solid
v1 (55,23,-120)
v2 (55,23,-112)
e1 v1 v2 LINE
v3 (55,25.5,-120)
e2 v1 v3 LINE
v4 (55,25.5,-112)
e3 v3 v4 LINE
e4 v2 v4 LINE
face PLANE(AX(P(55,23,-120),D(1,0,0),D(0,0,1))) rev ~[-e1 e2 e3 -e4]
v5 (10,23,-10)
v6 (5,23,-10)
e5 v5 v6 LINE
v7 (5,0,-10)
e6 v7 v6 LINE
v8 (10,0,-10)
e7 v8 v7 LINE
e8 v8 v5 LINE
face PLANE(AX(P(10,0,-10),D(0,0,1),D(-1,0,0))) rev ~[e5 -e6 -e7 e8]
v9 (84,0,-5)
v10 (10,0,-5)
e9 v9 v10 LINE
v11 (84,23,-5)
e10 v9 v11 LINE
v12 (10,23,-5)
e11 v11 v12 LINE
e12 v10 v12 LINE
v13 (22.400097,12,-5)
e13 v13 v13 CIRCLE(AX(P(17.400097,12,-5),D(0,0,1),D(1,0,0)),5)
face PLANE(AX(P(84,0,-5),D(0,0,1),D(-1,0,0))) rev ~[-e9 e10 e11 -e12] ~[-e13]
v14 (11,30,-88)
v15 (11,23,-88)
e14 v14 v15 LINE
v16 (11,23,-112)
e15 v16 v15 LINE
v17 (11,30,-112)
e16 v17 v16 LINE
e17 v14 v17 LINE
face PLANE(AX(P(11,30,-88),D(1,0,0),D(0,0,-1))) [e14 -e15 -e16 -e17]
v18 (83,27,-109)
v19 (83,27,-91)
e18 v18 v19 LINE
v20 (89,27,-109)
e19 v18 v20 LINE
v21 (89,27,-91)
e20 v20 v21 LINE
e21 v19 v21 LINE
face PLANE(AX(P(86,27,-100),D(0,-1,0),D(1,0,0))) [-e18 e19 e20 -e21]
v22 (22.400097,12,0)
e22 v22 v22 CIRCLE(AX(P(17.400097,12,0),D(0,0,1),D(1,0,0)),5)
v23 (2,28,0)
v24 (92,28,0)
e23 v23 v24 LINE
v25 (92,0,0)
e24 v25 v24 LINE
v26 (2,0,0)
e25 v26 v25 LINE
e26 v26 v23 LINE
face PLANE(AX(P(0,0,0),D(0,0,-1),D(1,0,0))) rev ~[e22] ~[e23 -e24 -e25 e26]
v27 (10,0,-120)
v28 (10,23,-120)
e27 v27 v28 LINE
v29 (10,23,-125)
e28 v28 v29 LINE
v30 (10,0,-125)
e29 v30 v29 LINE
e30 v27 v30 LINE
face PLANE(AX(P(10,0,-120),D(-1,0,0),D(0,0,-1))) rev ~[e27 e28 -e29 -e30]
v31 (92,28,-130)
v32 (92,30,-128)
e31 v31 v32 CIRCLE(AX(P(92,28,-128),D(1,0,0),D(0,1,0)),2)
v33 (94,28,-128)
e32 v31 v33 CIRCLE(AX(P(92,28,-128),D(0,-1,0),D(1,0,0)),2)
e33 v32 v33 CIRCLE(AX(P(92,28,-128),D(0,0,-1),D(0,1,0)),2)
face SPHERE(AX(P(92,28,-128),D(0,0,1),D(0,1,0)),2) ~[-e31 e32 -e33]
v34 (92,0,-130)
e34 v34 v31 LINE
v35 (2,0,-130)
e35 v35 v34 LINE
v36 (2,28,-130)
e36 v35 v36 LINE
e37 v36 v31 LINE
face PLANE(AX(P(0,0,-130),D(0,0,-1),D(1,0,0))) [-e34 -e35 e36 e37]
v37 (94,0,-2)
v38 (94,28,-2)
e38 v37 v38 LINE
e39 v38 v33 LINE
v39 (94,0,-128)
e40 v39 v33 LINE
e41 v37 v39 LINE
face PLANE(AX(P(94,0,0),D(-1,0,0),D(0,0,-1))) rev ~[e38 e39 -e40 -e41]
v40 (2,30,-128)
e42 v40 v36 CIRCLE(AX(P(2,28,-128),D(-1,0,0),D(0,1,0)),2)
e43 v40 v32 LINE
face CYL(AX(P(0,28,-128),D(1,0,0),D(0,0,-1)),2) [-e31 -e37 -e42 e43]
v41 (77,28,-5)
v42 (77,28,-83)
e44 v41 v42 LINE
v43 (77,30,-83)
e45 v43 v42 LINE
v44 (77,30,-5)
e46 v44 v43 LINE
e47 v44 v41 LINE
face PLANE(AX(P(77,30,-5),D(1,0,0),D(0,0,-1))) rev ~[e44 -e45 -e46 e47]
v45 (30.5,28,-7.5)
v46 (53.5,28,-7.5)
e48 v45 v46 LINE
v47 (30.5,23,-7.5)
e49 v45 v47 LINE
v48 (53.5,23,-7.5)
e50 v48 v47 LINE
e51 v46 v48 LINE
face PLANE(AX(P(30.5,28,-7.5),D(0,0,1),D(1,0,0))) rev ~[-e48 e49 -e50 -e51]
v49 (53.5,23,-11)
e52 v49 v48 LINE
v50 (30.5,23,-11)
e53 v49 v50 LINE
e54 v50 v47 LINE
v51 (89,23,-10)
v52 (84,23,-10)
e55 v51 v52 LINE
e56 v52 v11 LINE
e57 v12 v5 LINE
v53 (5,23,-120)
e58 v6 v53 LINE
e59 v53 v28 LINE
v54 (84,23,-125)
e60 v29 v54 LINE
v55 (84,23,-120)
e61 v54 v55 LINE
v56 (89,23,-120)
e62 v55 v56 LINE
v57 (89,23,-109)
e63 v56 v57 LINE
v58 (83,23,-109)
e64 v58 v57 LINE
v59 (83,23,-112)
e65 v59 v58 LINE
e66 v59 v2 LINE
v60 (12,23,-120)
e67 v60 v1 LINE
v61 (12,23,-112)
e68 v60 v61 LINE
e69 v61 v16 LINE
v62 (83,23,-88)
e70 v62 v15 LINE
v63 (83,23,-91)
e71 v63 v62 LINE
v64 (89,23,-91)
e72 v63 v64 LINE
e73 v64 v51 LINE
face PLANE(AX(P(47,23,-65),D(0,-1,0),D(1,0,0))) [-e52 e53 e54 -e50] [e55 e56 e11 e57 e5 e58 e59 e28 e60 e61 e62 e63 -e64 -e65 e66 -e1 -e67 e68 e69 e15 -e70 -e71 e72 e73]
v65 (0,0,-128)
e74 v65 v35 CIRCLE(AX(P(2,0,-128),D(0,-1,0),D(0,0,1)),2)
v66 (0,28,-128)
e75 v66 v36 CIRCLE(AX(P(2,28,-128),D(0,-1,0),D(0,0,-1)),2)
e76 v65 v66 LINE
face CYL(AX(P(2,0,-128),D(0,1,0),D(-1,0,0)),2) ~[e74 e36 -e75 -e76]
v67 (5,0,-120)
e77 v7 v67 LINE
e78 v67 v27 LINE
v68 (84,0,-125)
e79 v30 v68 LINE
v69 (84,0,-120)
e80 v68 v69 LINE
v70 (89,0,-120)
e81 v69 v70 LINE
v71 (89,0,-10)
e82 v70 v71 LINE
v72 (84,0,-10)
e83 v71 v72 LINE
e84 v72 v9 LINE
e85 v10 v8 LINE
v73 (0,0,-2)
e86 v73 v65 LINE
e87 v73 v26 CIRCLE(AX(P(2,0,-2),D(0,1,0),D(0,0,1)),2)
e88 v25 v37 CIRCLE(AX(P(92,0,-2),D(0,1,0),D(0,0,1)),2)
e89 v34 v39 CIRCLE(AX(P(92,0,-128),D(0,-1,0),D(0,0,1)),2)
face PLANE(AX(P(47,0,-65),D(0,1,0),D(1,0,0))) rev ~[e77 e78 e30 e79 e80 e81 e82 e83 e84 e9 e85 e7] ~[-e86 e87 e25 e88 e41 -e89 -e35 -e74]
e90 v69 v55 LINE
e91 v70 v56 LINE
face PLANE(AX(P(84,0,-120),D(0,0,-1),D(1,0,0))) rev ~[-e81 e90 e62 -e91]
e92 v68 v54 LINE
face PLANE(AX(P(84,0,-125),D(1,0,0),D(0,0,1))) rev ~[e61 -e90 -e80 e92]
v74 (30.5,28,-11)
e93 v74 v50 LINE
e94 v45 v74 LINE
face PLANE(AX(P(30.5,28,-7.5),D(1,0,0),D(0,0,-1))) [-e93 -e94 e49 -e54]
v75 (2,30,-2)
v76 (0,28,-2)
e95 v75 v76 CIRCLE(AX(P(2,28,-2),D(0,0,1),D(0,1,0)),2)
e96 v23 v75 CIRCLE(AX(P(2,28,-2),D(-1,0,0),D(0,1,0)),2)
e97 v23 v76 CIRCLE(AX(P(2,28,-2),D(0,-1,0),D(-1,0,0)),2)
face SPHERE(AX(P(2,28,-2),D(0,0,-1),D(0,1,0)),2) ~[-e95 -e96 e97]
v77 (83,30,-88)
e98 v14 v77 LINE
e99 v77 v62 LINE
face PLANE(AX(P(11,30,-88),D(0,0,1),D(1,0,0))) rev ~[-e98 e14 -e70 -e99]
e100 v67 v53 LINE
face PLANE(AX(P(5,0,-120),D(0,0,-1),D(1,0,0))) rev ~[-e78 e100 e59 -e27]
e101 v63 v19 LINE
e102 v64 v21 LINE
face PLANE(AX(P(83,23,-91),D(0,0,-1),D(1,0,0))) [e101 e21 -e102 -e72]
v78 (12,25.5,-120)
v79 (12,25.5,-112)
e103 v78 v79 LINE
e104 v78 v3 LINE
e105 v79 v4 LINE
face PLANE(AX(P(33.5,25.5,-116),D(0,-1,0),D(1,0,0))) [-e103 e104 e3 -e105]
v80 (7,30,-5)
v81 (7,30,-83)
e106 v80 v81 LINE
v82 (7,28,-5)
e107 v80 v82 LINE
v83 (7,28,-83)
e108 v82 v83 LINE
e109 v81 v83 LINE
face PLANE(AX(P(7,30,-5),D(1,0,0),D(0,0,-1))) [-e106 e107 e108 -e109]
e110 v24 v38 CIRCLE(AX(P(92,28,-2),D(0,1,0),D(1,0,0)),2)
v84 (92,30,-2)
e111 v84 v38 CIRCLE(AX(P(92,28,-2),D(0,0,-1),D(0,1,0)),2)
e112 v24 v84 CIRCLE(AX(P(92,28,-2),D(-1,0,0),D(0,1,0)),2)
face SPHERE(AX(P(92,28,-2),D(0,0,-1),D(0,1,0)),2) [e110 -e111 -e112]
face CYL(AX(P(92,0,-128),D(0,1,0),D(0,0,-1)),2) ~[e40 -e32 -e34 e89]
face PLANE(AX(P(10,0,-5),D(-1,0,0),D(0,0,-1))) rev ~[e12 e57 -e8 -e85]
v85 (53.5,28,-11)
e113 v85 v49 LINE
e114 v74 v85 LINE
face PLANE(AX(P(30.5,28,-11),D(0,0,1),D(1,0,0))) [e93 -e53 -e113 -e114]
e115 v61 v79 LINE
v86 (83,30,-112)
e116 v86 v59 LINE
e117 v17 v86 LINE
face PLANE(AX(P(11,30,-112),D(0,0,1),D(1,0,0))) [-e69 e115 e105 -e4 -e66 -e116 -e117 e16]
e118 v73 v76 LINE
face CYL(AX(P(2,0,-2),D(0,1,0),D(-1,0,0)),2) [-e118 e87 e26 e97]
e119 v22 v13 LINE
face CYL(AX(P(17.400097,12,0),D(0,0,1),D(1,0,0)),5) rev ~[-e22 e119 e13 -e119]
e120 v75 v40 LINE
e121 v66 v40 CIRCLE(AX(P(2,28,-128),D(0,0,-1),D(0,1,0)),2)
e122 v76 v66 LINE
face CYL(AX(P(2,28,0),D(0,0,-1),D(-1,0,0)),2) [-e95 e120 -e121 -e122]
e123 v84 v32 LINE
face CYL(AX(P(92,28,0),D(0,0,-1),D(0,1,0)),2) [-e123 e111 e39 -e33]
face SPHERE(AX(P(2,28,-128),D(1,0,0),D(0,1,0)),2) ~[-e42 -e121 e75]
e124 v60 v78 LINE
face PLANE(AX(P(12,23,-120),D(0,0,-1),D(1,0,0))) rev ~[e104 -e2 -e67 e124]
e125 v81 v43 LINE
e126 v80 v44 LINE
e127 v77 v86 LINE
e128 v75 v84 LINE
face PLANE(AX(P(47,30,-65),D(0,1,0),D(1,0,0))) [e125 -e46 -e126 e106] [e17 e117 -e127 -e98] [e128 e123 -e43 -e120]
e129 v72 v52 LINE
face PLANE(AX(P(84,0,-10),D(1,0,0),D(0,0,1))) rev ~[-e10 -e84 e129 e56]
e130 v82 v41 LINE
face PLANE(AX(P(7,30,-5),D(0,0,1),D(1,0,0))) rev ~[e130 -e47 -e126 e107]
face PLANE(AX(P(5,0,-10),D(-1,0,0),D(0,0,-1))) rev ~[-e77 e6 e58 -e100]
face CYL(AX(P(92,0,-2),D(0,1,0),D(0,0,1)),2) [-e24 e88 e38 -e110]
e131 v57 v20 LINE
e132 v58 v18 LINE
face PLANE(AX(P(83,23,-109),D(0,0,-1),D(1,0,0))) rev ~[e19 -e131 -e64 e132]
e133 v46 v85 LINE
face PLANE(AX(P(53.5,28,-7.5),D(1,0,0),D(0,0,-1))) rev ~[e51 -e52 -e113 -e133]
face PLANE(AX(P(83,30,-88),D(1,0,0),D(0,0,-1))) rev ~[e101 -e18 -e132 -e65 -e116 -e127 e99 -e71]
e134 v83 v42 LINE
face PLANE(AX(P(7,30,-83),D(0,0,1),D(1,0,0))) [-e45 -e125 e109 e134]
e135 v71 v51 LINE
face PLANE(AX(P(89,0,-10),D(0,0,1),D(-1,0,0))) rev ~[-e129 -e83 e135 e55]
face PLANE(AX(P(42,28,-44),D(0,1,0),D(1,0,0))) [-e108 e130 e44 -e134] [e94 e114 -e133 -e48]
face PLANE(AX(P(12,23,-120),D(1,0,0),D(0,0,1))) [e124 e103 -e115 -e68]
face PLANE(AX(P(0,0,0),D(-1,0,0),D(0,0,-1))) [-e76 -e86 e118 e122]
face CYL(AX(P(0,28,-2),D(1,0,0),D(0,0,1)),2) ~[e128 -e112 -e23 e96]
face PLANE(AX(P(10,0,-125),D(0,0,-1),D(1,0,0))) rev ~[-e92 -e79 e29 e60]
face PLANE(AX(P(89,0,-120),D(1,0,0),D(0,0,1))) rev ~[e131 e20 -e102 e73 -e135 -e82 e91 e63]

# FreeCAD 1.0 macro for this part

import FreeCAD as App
import Part
import Sketcher
from FreeCAD import Vector
Q = App.Units.Quantity


def edges_at(feature, points):
    """Names of the edges that pass closest to the given points."""
    edges = feature.Shape.Edges
    near = lambda p: min(range(len(edges)), key=lambda i: edges[i].distToShape(Part.Vertex(*p))[0])
    return sorted({f"Edge{near(p) + 1}" for p in points})

doc = App.newDocument("Part")
body = doc.addObject("PartDesign::Body", "Body")

# Sketch on XZ plane
sketch1 = body.newObject("Sketcher::SketchObject", "Sketch")
sketch1.AttachmentSupport = (doc.getObject("XZ_Plane"), [""])
sketch1.MapMode = "FlatFace"
sketch1.addGeometry([
    Part.LineSegment(Vector(0, -130, 0), Vector(0, 0, 0)),
    Part.LineSegment(Vector(0, 0, 0), Vector(94, 0, 0)),
    Part.LineSegment(Vector(94, 0, 0), Vector(94, -130, 0)),
    Part.LineSegment(Vector(94, -130, 0), Vector(0, -130, 0)),
], False)
sketch1.addConstraint([
    Sketcher.Constraint("Coincident", 0, 2, 1, 1),
    Sketcher.Constraint("Coincident", 1, 2, 2, 1),
    Sketcher.Constraint("Coincident", 2, 2, 3, 1),
    Sketcher.Constraint("Coincident", 3, 2, 0, 1),
    Sketcher.Constraint("Vertical", 0),
    Sketcher.Constraint("Horizontal", 1),
    Sketcher.Constraint("Vertical", 2),
    Sketcher.Constraint("Horizontal", 3),
    Sketcher.Constraint("Coincident", 0, 2, -1, 1),
    Sketcher.Constraint("DistanceX", 1, 1, 1, 2, Q("94 mm")),
    Sketcher.Constraint("DistanceY", 0, 1, 0, 2, Q("130 mm")),
])
pad1 = body.newObject("PartDesign::Pad", "Pad")
pad1.Profile = sketch1
pad1.Length = 30
pad1.Reversed = True

# Sketch on XZ plane
sketch2 = body.newObject("Sketcher::SketchObject", "Sketch001")
sketch2.AttachmentSupport = (doc.getObject("XZ_Plane"), [""])
sketch2.MapMode = "FlatFace"
sketch2.addGeometry([
    Part.LineSegment(Vector(84, -125, 0), Vector(84, -120, 0)),  # 0
    Part.LineSegment(Vector(84, -120, 0), Vector(89, -120, 0)),  # 1
    Part.LineSegment(Vector(89, -120, 0), Vector(89, -10, 0)),  # 2
    Part.LineSegment(Vector(89, -10, 0), Vector(84, -10, 0)),  # 3
    Part.LineSegment(Vector(84, -10, 0), Vector(84, -5, 0)),  # 4
    Part.LineSegment(Vector(84, -5, 0), Vector(10, -5, 0)),  # 5
    Part.LineSegment(Vector(10, -5, 0), Vector(10, -10, 0)),  # 6
    Part.LineSegment(Vector(10, -10, 0), Vector(5, -10, 0)),  # 7
    Part.LineSegment(Vector(5, -10, 0), Vector(5, -120, 0)),  # 8
    Part.LineSegment(Vector(5, -120, 0), Vector(10, -120, 0)),  # 9
    Part.LineSegment(Vector(10, -120, 0), Vector(10, -125, 0)),  # 10
    Part.LineSegment(Vector(10, -125, 0), Vector(84, -125, 0)),  # 11
], False)
sketch2.addConstraint([
    Sketcher.Constraint("Coincident", 0, 2, 1, 1),
    Sketcher.Constraint("Coincident", 1, 2, 2, 1),
    Sketcher.Constraint("Coincident", 2, 2, 3, 1),
    Sketcher.Constraint("Coincident", 3, 2, 4, 1),
    Sketcher.Constraint("Coincident", 4, 2, 5, 1),
    Sketcher.Constraint("Coincident", 5, 2, 6, 1),
    Sketcher.Constraint("Coincident", 6, 2, 7, 1),
    Sketcher.Constraint("Coincident", 7, 2, 8, 1),
    Sketcher.Constraint("Coincident", 8, 2, 9, 1),
    Sketcher.Constraint("Coincident", 9, 2, 10, 1),
    Sketcher.Constraint("Coincident", 10, 2, 11, 1),
    Sketcher.Constraint("Coincident", 11, 2, 0, 1),
    Sketcher.Constraint("Vertical", 0),
    Sketcher.Constraint("Horizontal", 1),
    Sketcher.Constraint("Vertical", 2),
    Sketcher.Constraint("Horizontal", 3),
    Sketcher.Constraint("Vertical", 4),
    Sketcher.Constraint("Horizontal", 5),
    Sketcher.Constraint("Vertical", 6),
    Sketcher.Constraint("Horizontal", 7),
    Sketcher.Constraint("Vertical", 8),
    Sketcher.Constraint("Horizontal", 9),
    Sketcher.Constraint("Vertical", 10),
    Sketcher.Constraint("Horizontal", 11),
    Sketcher.Constraint("Horizontal", 3, 2, 6, 2),
    Sketcher.Constraint("Horizontal", 1, 2, 8, 2),
    Sketcher.Constraint("Vertical", 0, 2, 3, 2),
    Sketcher.Constraint("Vertical", 6, 2, 9, 2),
    Sketcher.Constraint("Equal", 3, 7),
    Sketcher.Constraint("Equal", 9, 0),
    Sketcher.Constraint("Equal", 0, 4),
    Sketcher.Constraint("DistanceX", 1, 1, 1, 2, Q("5 mm")),
    Sketcher.Constraint("DistanceX", 5, 2, 5, 1, Q("74 mm")),
    Sketcher.Constraint("DistanceY", 2, 1, 2, 2, Q("110 mm")),
    Sketcher.Constraint("DistanceX", -1, 1, 0, 2, Q("84 mm")),
    Sketcher.Constraint("DistanceY", 0, 2, -1, 1, Q("120 mm")),
])
pocket1 = body.newObject("PartDesign::Pocket", "Pocket")
pocket1.Profile = sketch2
pocket1.Length = 23

# Sketch on XZ plane
sketch3 = body.newObject("Sketcher::SketchObject", "Sketch002")
sketch3.AttachmentSupport = (doc.getObject("XZ_Plane"), [""])
sketch3.MapMode = "FlatFace"
sketch3.AttachmentOffset = App.Placement(Vector(0, 0, -30), App.Rotation())
sketch3.addGeometry([
    Part.LineSegment(Vector(11, -112, 0), Vector(11, -88, 0)),
    Part.LineSegment(Vector(11, -88, 0), Vector(83, -88, 0)),
    Part.LineSegment(Vector(83, -88, 0), Vector(83, -112, 0)),
    Part.LineSegment(Vector(83, -112, 0), Vector(11, -112, 0)),
], False)
sketch3.addConstraint([
    Sketcher.Constraint("Coincident", 0, 2, 1, 1),
    Sketcher.Constraint("Coincident", 1, 2, 2, 1),
    Sketcher.Constraint("Coincident", 2, 2, 3, 1),
    Sketcher.Constraint("Coincident", 3, 2, 0, 1),
    Sketcher.Constraint("Vertical", 0),
    Sketcher.Constraint("Horizontal", 1),
    Sketcher.Constraint("Vertical", 2),
    Sketcher.Constraint("Horizontal", 3),
    Sketcher.Constraint("DistanceX", 1, 1, 1, 2, Q("72 mm")),
    Sketcher.Constraint("DistanceY", 0, 1, 0, 2, Q("24 mm")),
    Sketcher.Constraint("DistanceX", -1, 1, 0, 2, Q("11 mm")),
    Sketcher.Constraint("DistanceY", 0, 2, -1, 1, Q("88 mm")),
])
pocket2 = body.newObject("PartDesign::Pocket", "Pocket001")
pocket2.Profile = sketch3
pocket2.Type = "ThroughAll"
pocket2.Reversed = True

# Sketch on XZ plane
sketch4 = body.newObject("Sketcher::SketchObject", "Sketch003")
sketch4.AttachmentSupport = (doc.getObject("XZ_Plane"), [""])
sketch4.MapMode = "FlatFace"
sketch4.AttachmentOffset = App.Placement(Vector(0, 0, -23), App.Rotation())
sketch4.addGeometry([
    Part.LineSegment(Vector(83, -91, 0), Vector(83, -109, 0)),
    Part.LineSegment(Vector(83, -109, 0), Vector(89, -109, 0)),
    Part.LineSegment(Vector(89, -109, 0), Vector(89, -91, 0)),
    Part.LineSegment(Vector(89, -91, 0), Vector(83, -91, 0)),
], False)
sketch4.addConstraint([
    Sketcher.Constraint("Coincident", 0, 2, 1, 1),
    Sketcher.Constraint("Coincident", 1, 2, 2, 1),
    Sketcher.Constraint("Coincident", 2, 2, 3, 1),
    Sketcher.Constraint("Coincident", 3, 2, 0, 1),
    Sketcher.Constraint("Vertical", 0),
    Sketcher.Constraint("Horizontal", 1),
    Sketcher.Constraint("Vertical", 2),
    Sketcher.Constraint("Horizontal", 3),
    Sketcher.Constraint("DistanceX", 1, 1, 1, 2, Q("6 mm")),
    Sketcher.Constraint("DistanceY", 0, 2, 0, 1, Q("18 mm")),
    Sketcher.Constraint("DistanceX", -1, 1, 0, 2, Q("83 mm")),
    Sketcher.Constraint("DistanceY", 0, 2, -1, 1, Q("109 mm")),
])
pocket3 = body.newObject("PartDesign::Pocket", "Pocket002")
pocket3.Profile = sketch4
pocket3.Length = 4

# Sketch on XZ plane
sketch5 = body.newObject("Sketcher::SketchObject", "Sketch004")
sketch5.AttachmentSupport = (doc.getObject("XZ_Plane"), [""])
sketch5.MapMode = "FlatFace"
sketch5.AttachmentOffset = App.Placement(Vector(0, 0, -23), App.Rotation())
sketch5.addGeometry([
    Part.LineSegment(Vector(12, -112, 0), Vector(12, -120, 0)),
    Part.LineSegment(Vector(12, -120, 0), Vector(55, -120, 0)),
    Part.LineSegment(Vector(55, -120, 0), Vector(55, -112, 0)),
    Part.LineSegment(Vector(55, -112, 0), Vector(12, -112, 0)),
], False)
sketch5.addConstraint([
    Sketcher.Constraint("Coincident", 0, 2, 1, 1),
    Sketcher.Constraint("Coincident", 1, 2, 2, 1),
    Sketcher.Constraint("Coincident", 2, 2, 3, 1),
    Sketcher.Constraint("Coincident", 3, 2, 0, 1),
    Sketcher.Constraint("Vertical", 0),
    Sketcher.Constraint("Horizontal", 1),
    Sketcher.Constraint("Vertical", 2),
    Sketcher.Constraint("Horizontal", 3),
    Sketcher.Constraint("DistanceX", 1, 1, 1, 2, Q("43 mm")),
    Sketcher.Constraint("DistanceY", 0, 2, 0, 1, Q("8 mm")),
    Sketcher.Constraint("DistanceX", -1, 1, 0, 2, Q("12 mm")),
    Sketcher.Constraint("DistanceY", 0, 2, -1, 1, Q("120 mm")),
])
pocket4 = body.newObject("PartDesign::Pocket", "Pocket003")
pocket4.Profile = sketch5
pocket4.Length = 2.5

# Sketch on XZ plane
sketch6 = body.newObject("Sketcher::SketchObject", "Sketch005")
sketch6.AttachmentSupport = (doc.getObject("XZ_Plane"), [""])
sketch6.MapMode = "FlatFace"
sketch6.AttachmentOffset = App.Placement(Vector(0, 0, -30), App.Rotation())
sketch6.addGeometry([
    Part.LineSegment(Vector(7, -83, 0), Vector(7, -5, 0)),
    Part.LineSegment(Vector(7, -5, 0), Vector(77, -5, 0)),
    Part.LineSegment(Vector(77, -5, 0), Vector(77, -83, 0)),
    Part.LineSegment(Vector(77, -83, 0), Vector(7, -83, 0)),
], False)
sketch6.addConstraint([
    Sketcher.Constraint("Coincident", 0, 2, 1, 1),
    Sketcher.Constraint("Coincident", 1, 2, 2, 1),
    Sketcher.Constraint("Coincident", 2, 2, 3, 1),
    Sketcher.Constraint("Coincident", 3, 2, 0, 1),
    Sketcher.Constraint("Vertical", 0),
    Sketcher.Constraint("Horizontal", 1),
    Sketcher.Constraint("Vertical", 2),
    Sketcher.Constraint("Horizontal", 3),
    Sketcher.Constraint("DistanceX", 1, 1, 1, 2, Q("70 mm")),
    Sketcher.Constraint("DistanceY", 0, 1, 0, 2, Q("78 mm")),
    Sketcher.Constraint("DistanceX", -1, 1, 0, 2, Q("7 mm")),
    Sketcher.Constraint("DistanceY", 0, 2, -1, 1, Q("5 mm")),
])
pocket5 = body.newObject("PartDesign::Pocket", "Pocket004")
pocket5.Profile = sketch6
pocket5.Length = 2
pocket5.Reversed = True

# Sketch on XZ plane
sketch7 = body.newObject("Sketcher::SketchObject", "Sketch006")
sketch7.AttachmentSupport = (doc.getObject("XZ_Plane"), [""])
sketch7.MapMode = "FlatFace"
sketch7.AttachmentOffset = App.Placement(Vector(0, 0, -28), App.Rotation())
sketch7.addGeometry([
    Part.LineSegment(Vector(30.5, -11, 0), Vector(30.5, -7.5, 0)),
    Part.LineSegment(Vector(30.5, -7.5, 0), Vector(53.5, -7.5, 0)),
    Part.LineSegment(Vector(53.5, -7.5, 0), Vector(53.5, -11, 0)),
    Part.LineSegment(Vector(53.5, -11, 0), Vector(30.5, -11, 0)),
], False)
sketch7.addConstraint([
    Sketcher.Constraint("Coincident", 0, 2, 1, 1),
    Sketcher.Constraint("Coincident", 1, 2, 2, 1),
    Sketcher.Constraint("Coincident", 2, 2, 3, 1),
    Sketcher.Constraint("Coincident", 3, 2, 0, 1),
    Sketcher.Constraint("Vertical", 0),
    Sketcher.Constraint("Horizontal", 1),
    Sketcher.Constraint("Vertical", 2),
    Sketcher.Constraint("Horizontal", 3),
    Sketcher.Constraint("DistanceX", 1, 1, 1, 2, Q("23 mm")),
    Sketcher.Constraint("DistanceY", 0, 1, 0, 2, Q("3.5 mm")),
    Sketcher.Constraint("DistanceY", 2, 2, -1, 1, Q("11 mm")),
    Sketcher.Constraint("DistanceX", -1, 1, 0, 2, Q("30.5 mm")),
])
pocket6 = body.newObject("PartDesign::Pocket", "Pocket005")
pocket6.Profile = sketch7
pocket6.Type = "ThroughAll"
pocket6.Reversed = True
doc.recompute()

fillet = body.newObject("PartDesign::Fillet", "Fillet")
fillet.Base = (pocket6, edges_at(pocket6, [
    (94, 30, -65),
    (47, 30, -130),
    (0, 30, -65),
    (47, 30, 0),
    (0, 15, -130),
    (94, 15, -130),
    (94, 15, 0),
    (0, 15, 0),
]))
fillet.Radius = 2

# Sketch on XY plane
sketch8 = body.newObject("Sketcher::SketchObject", "Sketch007")
sketch8.AttachmentSupport = (doc.getObject("XY_Plane"), [""])
sketch8.MapMode = "FlatFace"
sketch8.addGeometry(Part.Circle(Vector(17, 12, 0), Vector(0, 0, 1), 5), False)
sketch8.addConstraint([
    Sketcher.Constraint("Diameter", 0, Q("10 mm")),
    Sketcher.Constraint("DistanceY", -1, 1, 0, 3, Q("12 mm")),
    Sketcher.Constraint("DistanceX", -1, 1, 0, 3, Q("17.400097 mm")),
])
pocket7 = body.newObject("PartDesign::Pocket", "Pocket006")
pocket7.Profile = sketch8
pocket7.Length = 10

doc.recompute()
